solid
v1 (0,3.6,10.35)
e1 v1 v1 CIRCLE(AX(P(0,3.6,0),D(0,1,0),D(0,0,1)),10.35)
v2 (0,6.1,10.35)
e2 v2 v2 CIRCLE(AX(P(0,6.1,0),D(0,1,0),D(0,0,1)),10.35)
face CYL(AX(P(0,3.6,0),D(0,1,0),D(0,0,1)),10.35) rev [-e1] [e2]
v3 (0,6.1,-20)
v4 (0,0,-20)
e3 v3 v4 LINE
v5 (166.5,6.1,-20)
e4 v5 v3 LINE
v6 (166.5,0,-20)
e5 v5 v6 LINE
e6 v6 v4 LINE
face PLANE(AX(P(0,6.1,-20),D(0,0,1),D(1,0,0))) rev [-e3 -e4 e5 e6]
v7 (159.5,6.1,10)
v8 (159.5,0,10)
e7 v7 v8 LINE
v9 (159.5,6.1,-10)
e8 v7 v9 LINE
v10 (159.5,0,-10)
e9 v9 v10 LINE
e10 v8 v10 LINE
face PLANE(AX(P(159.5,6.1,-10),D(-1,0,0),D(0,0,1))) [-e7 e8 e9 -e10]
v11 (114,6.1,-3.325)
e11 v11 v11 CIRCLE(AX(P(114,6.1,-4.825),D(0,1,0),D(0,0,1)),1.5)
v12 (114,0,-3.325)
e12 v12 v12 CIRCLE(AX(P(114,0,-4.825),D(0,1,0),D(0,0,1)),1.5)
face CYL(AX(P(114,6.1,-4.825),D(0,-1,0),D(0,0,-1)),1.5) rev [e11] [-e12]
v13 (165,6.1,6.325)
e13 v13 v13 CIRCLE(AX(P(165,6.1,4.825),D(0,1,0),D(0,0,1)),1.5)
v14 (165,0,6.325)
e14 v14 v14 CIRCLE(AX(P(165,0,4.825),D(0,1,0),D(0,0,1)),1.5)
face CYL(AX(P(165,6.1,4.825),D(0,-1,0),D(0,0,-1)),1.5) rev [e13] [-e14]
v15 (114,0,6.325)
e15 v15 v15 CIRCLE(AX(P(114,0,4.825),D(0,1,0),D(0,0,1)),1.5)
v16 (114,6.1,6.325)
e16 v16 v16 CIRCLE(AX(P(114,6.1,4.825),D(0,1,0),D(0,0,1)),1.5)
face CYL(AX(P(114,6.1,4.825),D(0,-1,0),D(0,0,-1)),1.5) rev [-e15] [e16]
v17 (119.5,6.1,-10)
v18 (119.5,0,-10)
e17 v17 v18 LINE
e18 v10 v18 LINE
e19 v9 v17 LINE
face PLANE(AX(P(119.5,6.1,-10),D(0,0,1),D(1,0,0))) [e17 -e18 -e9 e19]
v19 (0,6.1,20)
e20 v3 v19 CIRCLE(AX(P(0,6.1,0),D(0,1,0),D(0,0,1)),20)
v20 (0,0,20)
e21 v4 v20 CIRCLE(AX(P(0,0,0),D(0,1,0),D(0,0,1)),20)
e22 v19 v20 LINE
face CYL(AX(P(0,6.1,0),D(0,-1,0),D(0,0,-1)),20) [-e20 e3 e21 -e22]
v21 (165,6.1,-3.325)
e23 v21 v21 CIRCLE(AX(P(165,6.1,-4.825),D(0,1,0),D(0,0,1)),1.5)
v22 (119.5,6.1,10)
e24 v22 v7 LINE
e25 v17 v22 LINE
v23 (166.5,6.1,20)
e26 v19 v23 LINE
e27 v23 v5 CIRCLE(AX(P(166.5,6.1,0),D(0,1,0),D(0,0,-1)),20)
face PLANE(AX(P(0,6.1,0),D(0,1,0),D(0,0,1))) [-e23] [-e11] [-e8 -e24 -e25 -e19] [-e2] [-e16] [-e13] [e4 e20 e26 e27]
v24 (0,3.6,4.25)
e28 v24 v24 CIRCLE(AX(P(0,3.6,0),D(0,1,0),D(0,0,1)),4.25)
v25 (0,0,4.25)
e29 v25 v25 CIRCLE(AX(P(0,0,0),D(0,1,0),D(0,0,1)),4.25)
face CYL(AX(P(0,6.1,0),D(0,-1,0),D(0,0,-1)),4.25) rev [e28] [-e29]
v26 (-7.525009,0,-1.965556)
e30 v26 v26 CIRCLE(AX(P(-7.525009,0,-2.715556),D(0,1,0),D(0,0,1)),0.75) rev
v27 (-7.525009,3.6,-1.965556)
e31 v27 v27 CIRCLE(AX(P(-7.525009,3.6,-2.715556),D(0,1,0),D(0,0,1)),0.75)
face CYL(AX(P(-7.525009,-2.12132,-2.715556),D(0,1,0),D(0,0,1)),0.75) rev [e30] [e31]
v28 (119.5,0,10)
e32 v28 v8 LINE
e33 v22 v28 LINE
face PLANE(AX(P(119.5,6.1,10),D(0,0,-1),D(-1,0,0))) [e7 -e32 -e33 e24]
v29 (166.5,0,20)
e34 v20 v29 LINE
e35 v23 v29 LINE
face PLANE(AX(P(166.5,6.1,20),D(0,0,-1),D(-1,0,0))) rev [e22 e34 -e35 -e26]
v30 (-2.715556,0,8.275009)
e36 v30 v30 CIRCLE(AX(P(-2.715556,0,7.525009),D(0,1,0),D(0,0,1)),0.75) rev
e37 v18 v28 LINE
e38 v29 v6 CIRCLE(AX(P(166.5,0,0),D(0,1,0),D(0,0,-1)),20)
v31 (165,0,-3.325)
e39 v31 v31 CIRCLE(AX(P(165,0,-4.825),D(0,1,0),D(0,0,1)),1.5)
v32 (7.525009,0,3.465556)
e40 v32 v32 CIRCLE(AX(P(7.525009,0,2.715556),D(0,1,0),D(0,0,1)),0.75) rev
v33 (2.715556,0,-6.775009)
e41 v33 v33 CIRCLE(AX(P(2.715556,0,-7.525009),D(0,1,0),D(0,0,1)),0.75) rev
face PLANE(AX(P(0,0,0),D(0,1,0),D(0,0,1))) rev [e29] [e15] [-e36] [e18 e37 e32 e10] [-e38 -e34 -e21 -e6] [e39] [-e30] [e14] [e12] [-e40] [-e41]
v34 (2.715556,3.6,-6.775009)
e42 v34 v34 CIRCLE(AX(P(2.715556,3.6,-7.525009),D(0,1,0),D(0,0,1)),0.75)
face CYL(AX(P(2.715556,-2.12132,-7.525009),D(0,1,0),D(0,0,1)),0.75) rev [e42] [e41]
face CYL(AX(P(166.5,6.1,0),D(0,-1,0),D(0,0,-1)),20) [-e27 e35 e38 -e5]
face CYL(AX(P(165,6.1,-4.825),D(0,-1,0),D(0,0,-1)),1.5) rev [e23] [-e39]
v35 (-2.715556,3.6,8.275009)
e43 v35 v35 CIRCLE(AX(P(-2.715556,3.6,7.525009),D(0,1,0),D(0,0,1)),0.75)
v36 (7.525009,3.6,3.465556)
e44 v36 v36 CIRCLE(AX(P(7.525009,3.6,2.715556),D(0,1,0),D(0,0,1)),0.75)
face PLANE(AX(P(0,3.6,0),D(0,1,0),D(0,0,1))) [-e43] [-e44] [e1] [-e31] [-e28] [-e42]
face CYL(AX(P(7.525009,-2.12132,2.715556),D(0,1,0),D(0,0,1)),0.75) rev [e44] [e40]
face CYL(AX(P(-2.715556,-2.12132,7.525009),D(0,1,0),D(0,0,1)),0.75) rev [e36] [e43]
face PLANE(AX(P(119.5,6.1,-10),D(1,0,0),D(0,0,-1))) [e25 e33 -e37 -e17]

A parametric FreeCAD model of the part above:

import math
import FreeCAD as App
import Part
import Sketcher

V = App.Vector


def add_polygon(sketch, points):
    """Adds a closed chain of lines whose ends are joined by coincident constraints."""
    first, n = sketch.GeometryCount, len(points)
    for a, b in zip(points, points[1:] + points[:1]):
        sketch.addGeometry(Part.LineSegment(App.Vector(*a, 0), App.Vector(*b, 0)), False)
    for i in range(n):
        sketch.addConstraint(Sketcher.Constraint("Coincident", first + i, 2, first + (i + 1) % n, 1))

doc = App.newDocument("Part")
body = doc.addObject("PartDesign::Body", "Body")

# Sketch on XZ plane
sketch1 = body.newObject("Sketcher::SketchObject", "Sketch")
sketch1.AttachmentSupport = (doc.getObject("XZ_Plane"), [""])
sketch1.MapMode = "FlatFace"
sketch1.addGeometry(Part.ArcOfCircle(Part.Circle(V(166.5, 0, 0), V(0, 0, 1), 20), math.radians(-90), math.radians(90)), False)  # 0
sketch1.addGeometry(Part.LineSegment(V(166.5, -20, 0), V(0, -20, 0)), False)  # 1
sketch1.addGeometry(Part.ArcOfCircle(Part.Circle(V(0, 0, 0), V(0, 0, 1), 20), math.radians(90), math.radians(270)), False)  # 2
sketch1.addGeometry(Part.LineSegment(V(0, 20, 0), V(166.5, 20, 0)), False)  # 3
sketch1.addGeometry(Part.Circle(V(165, 4.825, 0), V(0, 0, 1), 1.5), False)  # 4
sketch1.addGeometry(Part.Circle(V(114, 4.825, 0), V(0, 0, 1), 1.5), False)  # 5
add_polygon(sketch1, [(119.5, 10), (119.5, -10), (159.5, -10), (159.5, 10)])  # lines 6-9
sketch1.addGeometry(Part.Circle(V(165, -4.825, 0), V(0, 0, 1), 1.5), False)  # 10
sketch1.addGeometry(Part.Circle(V(114, -4.825, 0), V(0, 0, 1), 1.5), False)  # 11
sketch1.addGeometry(Part.Circle(V(0, 0, 0), V(0, 0, 1), 4.25), False)  # 12
sketch1.addConstraint([
    Sketcher.Constraint("Tangent", 0, 1, 1, 1),
    Sketcher.Constraint("Tangent", 1, 2, 2, 2),
    Sketcher.Constraint("Tangent", 2, 1, 3, 1),
    Sketcher.Constraint("Tangent", 3, 2, 0, 2),
    Sketcher.Constraint("Horizontal", 1),
    Sketcher.Constraint("Horizontal", 3),
    Sketcher.Constraint("Vertical", 6),
    Sketcher.Constraint("Horizontal", 7),
    Sketcher.Constraint("Vertical", 8),
    Sketcher.Constraint("Horizontal", 9),
    Sketcher.Constraint("Coincident", 2, 3, -1, 1),
    Sketcher.Constraint("Coincident", 12, 3, -1, 1),
    Sketcher.Constraint("Equal", 4, 5),
    Sketcher.Constraint("Equal", 5, 10),
    Sketcher.Constraint("Equal", 10, 11),
    Sketcher.Constraint("Symmetric", 4, 3, 10, 3, -1),
    Sketcher.Constraint("Symmetric", 5, 3, 11, 3, -1),
    Sketcher.Constraint("Horizontal", 4, 3, 5, 3),
    Sketcher.Constraint("Diameter", 4, 3.0),
    Sketcher.Constraint("Radius", 0, 20.0),
    Sketcher.Constraint("Diameter", 12, 8.5),
    Sketcher.Constraint("DistanceX", 7, 1, 7, 2, 40.0),
    Sketcher.Constraint("DistanceY", 6, 2, 6, 1, 20.0),
    Sketcher.Constraint("DistanceX", 1, 2, 1, 1, 166.5),
    Sketcher.Constraint("DistanceX", -1, 1, 4, 3, 165.0),
    Sketcher.Constraint("DistanceX", -1, 1, 5, 3, 114.0),
    Sketcher.Constraint("DistanceY", 6, 2, -1, 1, 10.0),
    Sketcher.Constraint("DistanceX", 6, 2, 0, 3, 47.0),
    Sketcher.Constraint("DistanceY", 10, 3, 4, 3, 9.65),
])
pad1 = body.newObject("PartDesign::Pad", "Pad")
pad1.Profile = sketch1
pad1.Length = 6.1
pad1.Reversed = True

# Sketch on XZ plane
sketch2 = body.newObject("Sketcher::SketchObject", "Sketch001")
sketch2.AttachmentSupport = (doc.getObject("XZ_Plane"), [""])
sketch2.MapMode = "FlatFace"
sketch2.AttachmentOffset = App.Placement(V(0, 0, -6.1), App.Rotation())
sketch2.addGeometry(Part.Circle(V(0, 0, 0), V(0, 0, 1), 10.35), False)
sketch2.addConstraint([
    Sketcher.Constraint("Coincident", 0, 3, -1, 1),
    Sketcher.Constraint("Diameter", 0, 20.7),
])
pocket1 = body.newObject("PartDesign::Pocket", "Pocket")
pocket1.Profile = sketch2
pocket1.Length = 2.5
pocket1.Reversed = True

# Sketch on XZ plane
sketch3 = body.newObject("Sketcher::SketchObject", "Sketch002")
sketch3.AttachmentSupport = (doc.getObject("XZ_Plane"), [""])
sketch3.MapMode = "FlatFace"
sketch3.AttachmentOffset = App.Placement(V(0, 0, -3.6), App.Rotation())
sketch3.addGeometry([
    Part.Circle(V(-7.525009, -2.715556, 0), V(0, 0, 1), 0.75),
    Part.Circle(V(7.525009, 2.715556, 0), V(0, 0, 1), 0.75),
    Part.Circle(V(2.715556, -7.525009, 0), V(0, 0, 1), 0.75),
    Part.Circle(V(-2.715556, 7.525009, 0), V(0, 0, 1), 0.75),
], False)
sketch3.addConstraint([
    Sketcher.Constraint("Equal", 0, 1),
    Sketcher.Constraint("Equal", 1, 2),
    Sketcher.Constraint("Equal", 2, 3),
    Sketcher.Constraint("Symmetric", 0, 3, 1, 3, -1, 1),
    Sketcher.Constraint("Symmetric", 2, 3, 3, 3, -1, 1),
    Sketcher.Constraint("Diameter", 0, 1.5),
    Sketcher.Constraint("DistanceX", 0, 3, -1, 1, 7.525009),
    Sketcher.Constraint("DistanceY", 2, 3, -1, 1, 7.525009),
    Sketcher.Constraint("DistanceY", 0, 3, -1, 1, 2.715556),
    Sketcher.Constraint("DistanceX", -1, 1, 2, 3, 2.715556),
])
pocket2 = body.newObject("PartDesign::Pocket", "Pocket001")
pocket2.Profile = sketch3
pocket2.Length = 3.6
pocket2.Reversed = True

doc.recompute()
